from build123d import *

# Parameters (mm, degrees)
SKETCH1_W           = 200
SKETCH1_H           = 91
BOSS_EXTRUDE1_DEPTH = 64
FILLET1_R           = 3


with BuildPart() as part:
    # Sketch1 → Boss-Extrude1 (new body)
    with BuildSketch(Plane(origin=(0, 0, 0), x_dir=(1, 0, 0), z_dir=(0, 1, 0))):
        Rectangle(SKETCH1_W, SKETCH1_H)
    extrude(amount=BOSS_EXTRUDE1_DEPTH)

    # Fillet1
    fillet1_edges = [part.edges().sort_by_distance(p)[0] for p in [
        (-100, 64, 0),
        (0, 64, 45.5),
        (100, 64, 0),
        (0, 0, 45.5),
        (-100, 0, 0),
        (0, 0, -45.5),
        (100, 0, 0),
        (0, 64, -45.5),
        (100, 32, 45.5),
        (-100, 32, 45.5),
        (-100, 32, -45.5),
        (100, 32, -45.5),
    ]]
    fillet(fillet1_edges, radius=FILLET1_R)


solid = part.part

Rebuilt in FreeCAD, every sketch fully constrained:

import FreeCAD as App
import Part
import Sketcher


def add_polygon(sketch, points):
    """Adds a closed chain of lines whose ends are joined by coincident constraints."""
    first, n = sketch.GeometryCount, len(points)
    for a, b in zip(points, points[1:] + points[:1]):
        sketch.addGeometry(Part.LineSegment(App.Vector(*a, 0), App.Vector(*b, 0)), False)
    for i in range(n):
        sketch.addConstraint(Sketcher.Constraint("Coincident", first + i, 2, first + (i + 1) % n, 1))

doc = App.newDocument("Part")
body = doc.addObject("PartDesign::Body", "Body")

sketch1 = body.newObject("Sketcher::SketchObject", "Sketch")
sketch1.AttachmentSupport = (doc.getObject("XZ_Plane"), [""])
sketch1.MapMode = "FlatFace"
add_polygon(sketch1, [(-100, -46), (-100, 46), (100, 46), (100, -46)])
sketch1.addConstraint([
    Sketcher.Constraint("Vertical", 0),
    Sketcher.Constraint("Horizontal", 1),
    Sketcher.Constraint("Vertical", 2),
    Sketcher.Constraint("Horizontal", 3),
    Sketcher.Constraint("Symmetric", 0, 2, 2, 2, -1, 1),
    Sketcher.Constraint("DistanceX", 1, 1, 1, 2, 200.0),
    Sketcher.Constraint("DistanceY", 0, 1, 0, 2, 91.0),
])
pad1 = body.newObject("PartDesign::Pad", "Pad")
pad1.Profile = sketch1
pad1.Length = 64
pad1.Reversed = True
doc.recompute()

fillet = body.newObject("PartDesign::Fillet", "Fillet")
fillet.Base = (pad1, ["Edge1"])
fillet.UseAllEdges = True
fillet.Radius = 3

doc.recompute()
